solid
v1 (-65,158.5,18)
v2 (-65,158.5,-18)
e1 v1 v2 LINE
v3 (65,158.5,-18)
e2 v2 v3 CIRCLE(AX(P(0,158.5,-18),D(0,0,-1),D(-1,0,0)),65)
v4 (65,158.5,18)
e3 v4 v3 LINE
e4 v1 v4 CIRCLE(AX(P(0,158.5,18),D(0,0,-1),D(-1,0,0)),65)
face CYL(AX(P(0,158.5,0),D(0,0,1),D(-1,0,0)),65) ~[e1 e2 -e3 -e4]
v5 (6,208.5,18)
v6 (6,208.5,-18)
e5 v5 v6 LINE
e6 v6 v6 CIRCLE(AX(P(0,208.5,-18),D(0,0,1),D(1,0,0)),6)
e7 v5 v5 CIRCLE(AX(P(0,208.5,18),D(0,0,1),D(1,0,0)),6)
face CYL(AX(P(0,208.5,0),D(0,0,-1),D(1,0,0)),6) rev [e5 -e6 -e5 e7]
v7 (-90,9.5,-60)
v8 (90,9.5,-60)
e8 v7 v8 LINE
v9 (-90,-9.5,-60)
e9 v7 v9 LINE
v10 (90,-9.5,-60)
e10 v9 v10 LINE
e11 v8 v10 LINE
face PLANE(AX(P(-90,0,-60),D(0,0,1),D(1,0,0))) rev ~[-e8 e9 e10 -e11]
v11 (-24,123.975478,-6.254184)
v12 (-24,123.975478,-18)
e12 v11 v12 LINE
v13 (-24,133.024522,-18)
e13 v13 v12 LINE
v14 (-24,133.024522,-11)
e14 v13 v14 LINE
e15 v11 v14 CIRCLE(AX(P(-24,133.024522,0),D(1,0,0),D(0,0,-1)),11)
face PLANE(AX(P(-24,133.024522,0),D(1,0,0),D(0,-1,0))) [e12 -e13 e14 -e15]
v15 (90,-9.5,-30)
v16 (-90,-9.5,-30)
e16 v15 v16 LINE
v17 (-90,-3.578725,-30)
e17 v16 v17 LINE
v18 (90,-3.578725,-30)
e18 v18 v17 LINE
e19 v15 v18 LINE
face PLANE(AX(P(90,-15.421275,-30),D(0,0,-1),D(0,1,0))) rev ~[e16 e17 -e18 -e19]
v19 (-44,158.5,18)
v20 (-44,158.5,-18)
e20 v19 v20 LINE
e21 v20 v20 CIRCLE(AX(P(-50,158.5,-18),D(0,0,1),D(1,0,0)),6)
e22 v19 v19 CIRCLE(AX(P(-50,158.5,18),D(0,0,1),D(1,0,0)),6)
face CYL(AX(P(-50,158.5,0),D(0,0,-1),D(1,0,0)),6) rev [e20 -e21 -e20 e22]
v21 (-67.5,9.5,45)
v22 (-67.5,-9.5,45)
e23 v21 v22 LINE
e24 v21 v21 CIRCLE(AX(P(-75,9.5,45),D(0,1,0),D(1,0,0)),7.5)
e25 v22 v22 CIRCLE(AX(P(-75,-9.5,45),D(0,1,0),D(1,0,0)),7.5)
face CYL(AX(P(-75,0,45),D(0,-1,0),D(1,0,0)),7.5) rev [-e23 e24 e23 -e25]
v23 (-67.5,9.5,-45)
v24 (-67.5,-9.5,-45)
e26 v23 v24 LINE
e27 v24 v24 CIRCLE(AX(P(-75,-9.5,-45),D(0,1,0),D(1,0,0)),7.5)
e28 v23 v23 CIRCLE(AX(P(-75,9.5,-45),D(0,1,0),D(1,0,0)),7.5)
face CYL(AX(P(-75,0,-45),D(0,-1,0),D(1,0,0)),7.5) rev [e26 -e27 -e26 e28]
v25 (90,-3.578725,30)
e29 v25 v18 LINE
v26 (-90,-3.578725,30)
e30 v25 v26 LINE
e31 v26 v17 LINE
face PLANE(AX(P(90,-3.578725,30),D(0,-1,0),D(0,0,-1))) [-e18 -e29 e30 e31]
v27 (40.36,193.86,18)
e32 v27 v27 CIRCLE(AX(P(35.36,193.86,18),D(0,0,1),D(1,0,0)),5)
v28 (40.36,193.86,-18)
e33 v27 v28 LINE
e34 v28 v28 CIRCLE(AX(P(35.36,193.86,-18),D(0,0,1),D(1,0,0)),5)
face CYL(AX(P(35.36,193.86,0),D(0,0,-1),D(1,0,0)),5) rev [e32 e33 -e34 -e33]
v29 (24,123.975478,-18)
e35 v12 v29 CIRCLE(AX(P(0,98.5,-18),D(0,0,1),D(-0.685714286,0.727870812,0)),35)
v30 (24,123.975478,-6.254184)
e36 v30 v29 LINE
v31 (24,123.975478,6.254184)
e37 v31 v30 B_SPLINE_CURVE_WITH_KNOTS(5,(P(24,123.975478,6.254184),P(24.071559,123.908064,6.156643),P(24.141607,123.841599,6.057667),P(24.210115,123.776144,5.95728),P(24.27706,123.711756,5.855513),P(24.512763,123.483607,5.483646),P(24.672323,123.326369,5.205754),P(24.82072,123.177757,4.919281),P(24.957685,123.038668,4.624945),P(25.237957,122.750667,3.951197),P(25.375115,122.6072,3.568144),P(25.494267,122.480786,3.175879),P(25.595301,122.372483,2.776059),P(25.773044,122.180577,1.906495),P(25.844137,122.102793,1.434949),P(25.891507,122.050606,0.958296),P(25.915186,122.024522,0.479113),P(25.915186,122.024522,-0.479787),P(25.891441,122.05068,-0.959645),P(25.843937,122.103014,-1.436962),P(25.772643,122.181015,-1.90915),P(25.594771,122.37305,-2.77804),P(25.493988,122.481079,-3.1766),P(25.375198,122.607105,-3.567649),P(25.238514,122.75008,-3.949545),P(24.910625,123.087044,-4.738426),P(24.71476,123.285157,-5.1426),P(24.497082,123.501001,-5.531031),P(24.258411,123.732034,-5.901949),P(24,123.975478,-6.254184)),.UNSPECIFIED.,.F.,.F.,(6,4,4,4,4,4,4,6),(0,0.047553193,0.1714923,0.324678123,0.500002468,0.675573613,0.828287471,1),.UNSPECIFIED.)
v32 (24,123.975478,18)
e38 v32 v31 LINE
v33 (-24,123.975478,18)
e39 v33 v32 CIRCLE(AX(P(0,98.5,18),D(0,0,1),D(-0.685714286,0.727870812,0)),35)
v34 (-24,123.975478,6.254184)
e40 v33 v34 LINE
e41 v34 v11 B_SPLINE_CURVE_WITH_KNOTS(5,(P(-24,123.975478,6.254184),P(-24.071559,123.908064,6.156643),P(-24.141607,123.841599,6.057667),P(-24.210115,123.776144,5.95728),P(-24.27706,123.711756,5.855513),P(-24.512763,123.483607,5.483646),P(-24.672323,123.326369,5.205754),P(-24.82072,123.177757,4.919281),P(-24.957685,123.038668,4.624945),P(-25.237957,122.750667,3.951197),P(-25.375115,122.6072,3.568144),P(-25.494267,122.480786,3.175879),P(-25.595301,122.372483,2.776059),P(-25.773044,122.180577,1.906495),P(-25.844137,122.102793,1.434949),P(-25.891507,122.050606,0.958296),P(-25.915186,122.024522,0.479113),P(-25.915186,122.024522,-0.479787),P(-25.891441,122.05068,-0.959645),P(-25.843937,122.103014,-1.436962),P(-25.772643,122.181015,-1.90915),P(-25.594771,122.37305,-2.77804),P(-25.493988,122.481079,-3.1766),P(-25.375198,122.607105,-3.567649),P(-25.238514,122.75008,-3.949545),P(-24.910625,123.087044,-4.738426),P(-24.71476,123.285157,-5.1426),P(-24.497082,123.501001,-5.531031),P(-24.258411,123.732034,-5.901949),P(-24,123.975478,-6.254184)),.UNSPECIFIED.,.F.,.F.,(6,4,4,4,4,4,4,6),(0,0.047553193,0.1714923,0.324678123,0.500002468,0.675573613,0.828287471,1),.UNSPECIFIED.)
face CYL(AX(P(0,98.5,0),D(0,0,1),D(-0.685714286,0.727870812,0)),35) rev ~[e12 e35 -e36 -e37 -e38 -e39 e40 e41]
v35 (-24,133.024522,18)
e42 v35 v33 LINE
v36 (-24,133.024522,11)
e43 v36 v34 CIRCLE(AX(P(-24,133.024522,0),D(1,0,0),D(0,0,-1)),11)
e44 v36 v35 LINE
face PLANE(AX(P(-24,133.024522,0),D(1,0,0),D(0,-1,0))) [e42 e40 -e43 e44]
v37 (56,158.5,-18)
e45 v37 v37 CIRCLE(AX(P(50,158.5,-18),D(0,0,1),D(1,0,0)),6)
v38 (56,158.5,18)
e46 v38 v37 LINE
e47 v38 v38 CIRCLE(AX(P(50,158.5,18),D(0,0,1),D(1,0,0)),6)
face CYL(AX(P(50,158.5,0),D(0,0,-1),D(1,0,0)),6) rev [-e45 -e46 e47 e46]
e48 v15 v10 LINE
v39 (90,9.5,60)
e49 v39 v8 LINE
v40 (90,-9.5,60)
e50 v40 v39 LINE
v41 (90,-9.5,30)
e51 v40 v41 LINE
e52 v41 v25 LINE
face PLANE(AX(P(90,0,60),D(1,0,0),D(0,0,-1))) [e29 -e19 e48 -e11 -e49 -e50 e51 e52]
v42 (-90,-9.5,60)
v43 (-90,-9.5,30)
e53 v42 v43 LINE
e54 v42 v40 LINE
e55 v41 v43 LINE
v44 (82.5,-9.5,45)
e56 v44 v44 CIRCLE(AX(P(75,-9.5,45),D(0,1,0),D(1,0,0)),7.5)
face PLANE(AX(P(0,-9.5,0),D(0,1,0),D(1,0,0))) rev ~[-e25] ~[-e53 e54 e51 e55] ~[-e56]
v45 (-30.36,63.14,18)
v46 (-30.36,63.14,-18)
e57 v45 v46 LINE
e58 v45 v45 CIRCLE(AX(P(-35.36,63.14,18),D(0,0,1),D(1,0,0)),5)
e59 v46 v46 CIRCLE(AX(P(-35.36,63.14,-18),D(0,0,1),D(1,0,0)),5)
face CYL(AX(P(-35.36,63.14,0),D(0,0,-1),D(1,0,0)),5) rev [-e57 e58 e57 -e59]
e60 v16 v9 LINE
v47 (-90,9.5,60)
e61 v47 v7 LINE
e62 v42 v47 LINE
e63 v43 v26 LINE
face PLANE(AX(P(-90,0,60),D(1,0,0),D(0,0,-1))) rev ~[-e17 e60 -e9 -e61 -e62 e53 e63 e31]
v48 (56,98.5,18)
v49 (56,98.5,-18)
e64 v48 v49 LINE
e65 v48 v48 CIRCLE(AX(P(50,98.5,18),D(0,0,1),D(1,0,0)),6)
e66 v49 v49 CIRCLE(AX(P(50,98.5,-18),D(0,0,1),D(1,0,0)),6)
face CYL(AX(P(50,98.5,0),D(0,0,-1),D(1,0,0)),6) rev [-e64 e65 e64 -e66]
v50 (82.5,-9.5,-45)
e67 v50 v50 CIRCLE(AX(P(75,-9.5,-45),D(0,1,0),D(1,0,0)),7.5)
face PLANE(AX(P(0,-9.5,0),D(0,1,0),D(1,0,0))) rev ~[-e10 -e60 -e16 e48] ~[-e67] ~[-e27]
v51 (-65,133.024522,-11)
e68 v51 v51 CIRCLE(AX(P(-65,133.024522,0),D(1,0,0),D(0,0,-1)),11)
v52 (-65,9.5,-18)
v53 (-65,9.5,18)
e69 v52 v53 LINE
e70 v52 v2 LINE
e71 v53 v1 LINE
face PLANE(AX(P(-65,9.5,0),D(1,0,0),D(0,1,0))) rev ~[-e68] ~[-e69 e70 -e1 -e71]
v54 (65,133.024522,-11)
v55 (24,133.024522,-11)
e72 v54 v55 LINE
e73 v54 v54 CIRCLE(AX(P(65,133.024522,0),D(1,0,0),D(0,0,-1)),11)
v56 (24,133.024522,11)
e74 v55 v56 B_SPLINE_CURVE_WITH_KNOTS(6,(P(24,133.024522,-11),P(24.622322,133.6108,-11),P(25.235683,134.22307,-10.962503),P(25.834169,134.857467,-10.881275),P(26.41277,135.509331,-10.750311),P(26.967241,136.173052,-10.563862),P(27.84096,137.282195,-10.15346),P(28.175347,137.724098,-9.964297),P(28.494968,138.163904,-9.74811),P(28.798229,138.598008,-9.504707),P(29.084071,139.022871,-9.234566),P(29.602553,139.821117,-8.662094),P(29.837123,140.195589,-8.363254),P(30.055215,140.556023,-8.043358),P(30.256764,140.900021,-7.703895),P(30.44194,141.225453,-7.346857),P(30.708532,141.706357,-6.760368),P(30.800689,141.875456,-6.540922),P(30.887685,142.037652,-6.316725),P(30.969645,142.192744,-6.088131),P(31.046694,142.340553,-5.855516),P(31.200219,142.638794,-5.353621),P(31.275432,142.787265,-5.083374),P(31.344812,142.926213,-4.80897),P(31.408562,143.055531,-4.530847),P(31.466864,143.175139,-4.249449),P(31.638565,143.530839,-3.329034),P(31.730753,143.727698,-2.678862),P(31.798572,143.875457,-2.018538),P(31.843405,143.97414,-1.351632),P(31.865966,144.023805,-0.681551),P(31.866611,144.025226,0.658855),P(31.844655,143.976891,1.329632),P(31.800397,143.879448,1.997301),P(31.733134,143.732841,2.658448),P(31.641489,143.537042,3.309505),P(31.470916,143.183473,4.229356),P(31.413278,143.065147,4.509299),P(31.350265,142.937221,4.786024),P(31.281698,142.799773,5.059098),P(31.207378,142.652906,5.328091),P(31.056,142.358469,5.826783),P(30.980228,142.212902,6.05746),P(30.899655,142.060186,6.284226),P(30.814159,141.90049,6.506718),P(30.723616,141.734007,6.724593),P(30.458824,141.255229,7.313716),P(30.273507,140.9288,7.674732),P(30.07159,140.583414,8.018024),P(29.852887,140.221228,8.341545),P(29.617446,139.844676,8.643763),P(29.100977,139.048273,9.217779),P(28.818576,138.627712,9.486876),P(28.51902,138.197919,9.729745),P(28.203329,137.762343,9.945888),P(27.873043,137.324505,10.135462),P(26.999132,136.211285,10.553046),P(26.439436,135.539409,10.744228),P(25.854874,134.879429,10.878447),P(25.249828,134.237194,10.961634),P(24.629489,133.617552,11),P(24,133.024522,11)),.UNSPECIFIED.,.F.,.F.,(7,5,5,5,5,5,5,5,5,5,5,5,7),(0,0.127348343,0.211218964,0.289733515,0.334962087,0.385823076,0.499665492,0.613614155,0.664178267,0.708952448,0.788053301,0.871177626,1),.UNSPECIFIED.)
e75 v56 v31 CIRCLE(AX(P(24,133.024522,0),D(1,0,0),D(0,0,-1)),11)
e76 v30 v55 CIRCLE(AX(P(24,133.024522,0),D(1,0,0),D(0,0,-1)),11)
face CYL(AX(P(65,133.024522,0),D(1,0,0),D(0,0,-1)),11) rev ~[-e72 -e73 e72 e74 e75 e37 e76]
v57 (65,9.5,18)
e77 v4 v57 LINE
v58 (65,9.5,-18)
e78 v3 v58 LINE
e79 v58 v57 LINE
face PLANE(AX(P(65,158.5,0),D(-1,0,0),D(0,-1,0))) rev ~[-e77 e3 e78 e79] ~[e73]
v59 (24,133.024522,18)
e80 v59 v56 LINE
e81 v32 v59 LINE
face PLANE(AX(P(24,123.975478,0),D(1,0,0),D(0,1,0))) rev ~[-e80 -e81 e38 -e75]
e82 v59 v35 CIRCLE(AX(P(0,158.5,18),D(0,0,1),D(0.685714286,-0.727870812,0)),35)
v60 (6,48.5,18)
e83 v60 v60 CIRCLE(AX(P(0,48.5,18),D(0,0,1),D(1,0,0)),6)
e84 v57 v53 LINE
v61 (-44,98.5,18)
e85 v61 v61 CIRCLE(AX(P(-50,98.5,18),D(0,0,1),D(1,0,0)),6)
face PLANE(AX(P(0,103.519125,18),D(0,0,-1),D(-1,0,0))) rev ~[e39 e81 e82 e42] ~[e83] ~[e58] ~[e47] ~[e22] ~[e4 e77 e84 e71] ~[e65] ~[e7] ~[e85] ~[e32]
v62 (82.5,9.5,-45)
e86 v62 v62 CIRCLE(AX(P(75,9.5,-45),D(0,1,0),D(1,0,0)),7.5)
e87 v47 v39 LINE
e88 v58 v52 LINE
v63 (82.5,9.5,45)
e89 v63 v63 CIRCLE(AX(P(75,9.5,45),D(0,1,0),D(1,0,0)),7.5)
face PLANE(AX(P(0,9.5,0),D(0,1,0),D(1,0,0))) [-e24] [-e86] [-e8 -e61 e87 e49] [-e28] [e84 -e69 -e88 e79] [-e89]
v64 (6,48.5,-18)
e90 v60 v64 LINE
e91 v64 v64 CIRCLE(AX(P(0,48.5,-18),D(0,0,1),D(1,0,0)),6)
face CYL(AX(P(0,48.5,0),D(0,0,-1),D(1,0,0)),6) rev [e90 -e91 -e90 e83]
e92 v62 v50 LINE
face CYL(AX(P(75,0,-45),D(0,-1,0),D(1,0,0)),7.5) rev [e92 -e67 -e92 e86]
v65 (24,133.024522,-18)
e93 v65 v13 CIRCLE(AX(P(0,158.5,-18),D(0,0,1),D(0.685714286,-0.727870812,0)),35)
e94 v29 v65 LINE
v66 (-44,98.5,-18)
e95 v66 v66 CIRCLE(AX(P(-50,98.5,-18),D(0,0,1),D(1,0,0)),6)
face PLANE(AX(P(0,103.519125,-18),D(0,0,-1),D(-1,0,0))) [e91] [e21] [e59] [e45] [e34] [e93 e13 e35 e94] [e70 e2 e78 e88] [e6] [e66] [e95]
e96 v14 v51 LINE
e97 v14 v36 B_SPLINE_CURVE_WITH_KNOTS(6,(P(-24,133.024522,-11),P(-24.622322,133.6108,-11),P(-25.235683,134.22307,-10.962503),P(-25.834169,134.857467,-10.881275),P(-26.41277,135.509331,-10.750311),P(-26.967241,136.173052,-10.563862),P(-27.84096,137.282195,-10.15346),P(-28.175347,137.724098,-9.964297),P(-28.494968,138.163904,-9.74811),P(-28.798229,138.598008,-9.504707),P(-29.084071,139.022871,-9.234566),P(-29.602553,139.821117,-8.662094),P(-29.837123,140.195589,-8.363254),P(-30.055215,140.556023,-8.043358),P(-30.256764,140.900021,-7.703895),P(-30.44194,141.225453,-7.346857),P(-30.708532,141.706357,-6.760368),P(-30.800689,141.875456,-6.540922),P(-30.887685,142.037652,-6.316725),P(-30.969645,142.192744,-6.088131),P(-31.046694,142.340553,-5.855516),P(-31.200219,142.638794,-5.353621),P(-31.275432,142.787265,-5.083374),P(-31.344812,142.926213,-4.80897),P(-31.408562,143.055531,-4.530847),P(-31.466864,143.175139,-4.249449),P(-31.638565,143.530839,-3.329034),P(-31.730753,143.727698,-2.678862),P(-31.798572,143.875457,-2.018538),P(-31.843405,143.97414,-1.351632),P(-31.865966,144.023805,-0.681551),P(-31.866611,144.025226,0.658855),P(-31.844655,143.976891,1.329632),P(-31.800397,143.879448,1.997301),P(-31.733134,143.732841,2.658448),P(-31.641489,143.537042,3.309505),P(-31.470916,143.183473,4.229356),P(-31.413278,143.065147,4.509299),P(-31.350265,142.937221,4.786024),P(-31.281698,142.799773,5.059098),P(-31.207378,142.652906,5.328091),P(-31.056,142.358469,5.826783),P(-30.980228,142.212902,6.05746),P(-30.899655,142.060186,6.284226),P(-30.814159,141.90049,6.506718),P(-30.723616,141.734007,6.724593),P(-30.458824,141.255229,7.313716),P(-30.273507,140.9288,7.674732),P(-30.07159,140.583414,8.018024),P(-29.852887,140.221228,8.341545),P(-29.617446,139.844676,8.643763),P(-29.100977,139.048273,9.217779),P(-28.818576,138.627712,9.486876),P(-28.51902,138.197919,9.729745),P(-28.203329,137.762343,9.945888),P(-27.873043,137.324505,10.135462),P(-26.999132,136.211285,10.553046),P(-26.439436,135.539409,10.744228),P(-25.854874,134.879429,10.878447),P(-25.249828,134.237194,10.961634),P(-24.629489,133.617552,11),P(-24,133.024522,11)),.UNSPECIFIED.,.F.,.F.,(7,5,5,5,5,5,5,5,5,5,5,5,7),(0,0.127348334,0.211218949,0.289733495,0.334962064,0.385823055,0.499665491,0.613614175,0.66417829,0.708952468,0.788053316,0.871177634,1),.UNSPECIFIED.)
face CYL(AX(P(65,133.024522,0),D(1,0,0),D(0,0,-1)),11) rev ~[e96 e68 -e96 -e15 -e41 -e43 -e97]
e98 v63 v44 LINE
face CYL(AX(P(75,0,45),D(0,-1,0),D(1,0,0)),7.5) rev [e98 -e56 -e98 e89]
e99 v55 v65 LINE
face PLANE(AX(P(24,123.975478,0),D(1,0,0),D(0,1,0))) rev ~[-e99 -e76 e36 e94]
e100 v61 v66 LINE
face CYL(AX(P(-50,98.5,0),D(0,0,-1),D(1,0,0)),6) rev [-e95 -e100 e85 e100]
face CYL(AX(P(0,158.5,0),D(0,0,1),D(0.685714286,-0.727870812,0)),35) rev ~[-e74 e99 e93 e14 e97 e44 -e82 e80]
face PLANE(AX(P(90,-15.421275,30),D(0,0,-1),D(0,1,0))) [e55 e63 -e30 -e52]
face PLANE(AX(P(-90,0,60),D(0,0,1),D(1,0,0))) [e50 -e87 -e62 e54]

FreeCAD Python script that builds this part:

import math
import FreeCAD as App
import Part
import Sketcher


def add_polygon(sketch, points):
    """Adds a closed chain of lines whose ends are joined by coincident constraints."""
    first, n = sketch.GeometryCount, len(points)
    for a, b in zip(points, points[1:] + points[:1]):
        sketch.addGeometry(Part.LineSegment(App.Vector(*a, 0), App.Vector(*b, 0)), False)
    for i in range(n):
        sketch.addConstraint(Sketcher.Constraint("Coincident", first + i, 2, first + (i + 1) % n, 1))

doc = App.newDocument("Part")
body = doc.addObject("PartDesign::Body", "Body")

# Sketch on XZ plane
sketch1 = body.newObject("Sketcher::SketchObject", "Sketch")
sketch1.AttachmentSupport = (doc.getObject("XZ_Plane"), [""])
sketch1.MapMode = "FlatFace"
add_polygon(sketch1, [(-90, -60), (-90, 60), (90, 60), (90, -60)])  # lines 0-3
sketch1.addGeometry(Part.Circle(App.Vector(-75, 45, 0), App.Vector(0, 0, 1), 7.5), False)  # 4
sketch1.addGeometry(Part.Circle(App.Vector(75, 45, 0), App.Vector(0, 0, 1), 7.5), False)  # 5
sketch1.addGeometry(Part.Circle(App.Vector(-75, -45, 0), App.Vector(0, 0, 1), 7.5), False)  # 6
sketch1.addGeometry(Part.Circle(App.Vector(75, -45, 0), App.Vector(0, 0, 1), 7.5), False)  # 7
sketch1.addConstraint([
    Sketcher.Constraint("Vertical", 0),
    Sketcher.Constraint("Horizontal", 1),
    Sketcher.Constraint("Vertical", 2),
    Sketcher.Constraint("Horizontal", 3),
    Sketcher.Constraint("Equal", 4, 5),
    Sketcher.Constraint("Equal", 5, 6),
    Sketcher.Constraint("Equal", 6, 7),
    Sketcher.Constraint("Symmetric", 5, 3, 6, 3, -1, 1),
    Sketcher.Constraint("Symmetric", 4, 3, 7, 3, -1, 1),
    Sketcher.Constraint("Symmetric", 0, 2, 2, 2, -1, 1),
    Sketcher.Constraint("Symmetric", 4, 3, 5, 3, -2),
    Sketcher.Constraint("Diameter", 4, 15.0),
    Sketcher.Constraint("DistanceX", 1, 1, 1, 2, 180.0),
    Sketcher.Constraint("DistanceY", 0, 1, 0, 2, 120.0),
    Sketcher.Constraint("DistanceX", 4, 3, -1, 1, 75.0),
    Sketcher.Constraint("DistanceY", -1, 1, 4, 3, 45.0),
])
pad1 = body.newObject("PartDesign::Pad", "Pad")
pad1.Profile = sketch1
pad1.Length = 19
pad1.Midplane = True

# Sketch on XY plane
sketch2 = body.newObject("Sketcher::SketchObject", "Sketch001")
sketch2.AttachmentSupport = (doc.getObject("XY_Plane"), [""])
sketch2.MapMode = "FlatFace"
sketch2.addGeometry([
    Part.LineSegment(App.Vector(-65, 158.5, 0), App.Vector(-65, 9.5, 0)),  # 0
    Part.LineSegment(App.Vector(-65, 9.5, 0), App.Vector(65, 9.5, 0)),  # 1
    Part.LineSegment(App.Vector(65, 9.5, 0), App.Vector(65, 158.5, 0)),  # 2
    Part.ArcOfCircle(Part.Circle(App.Vector(0, 158.5, 0), App.Vector(0, 0, 1), 65), math.radians(0), math.radians(180)),  # 3
    Part.Circle(App.Vector(50, 98.5, 0), App.Vector(0, 0, 1), 6),  # 4
    Part.Circle(App.Vector(0, 48.5, 0), App.Vector(0, 0, 1), 6),  # 5
    Part.Circle(App.Vector(-35.36, 63.14, 0), App.Vector(0, 0, 1), 5),  # 6
    Part.Circle(App.Vector(-50, 98.5, 0), App.Vector(0, 0, 1), 6),  # 7
    Part.Circle(App.Vector(50, 158.5, 0), App.Vector(0, 0, 1), 6),  # 8
    Part.Circle(App.Vector(35.36, 193.86, 0), App.Vector(0, 0, 1), 5),  # 9
    Part.ArcOfCircle(Part.Circle(App.Vector(0, 158.5, 0), App.Vector(0, 0, 1), 35), math.radians(-46.708192), math.radians(226.708192)),  # 10
    Part.LineSegment(App.Vector(24, 133.024522, 0), App.Vector(24, 123.975478, 0)),  # 11
    Part.ArcOfCircle(Part.Circle(App.Vector(0, 98.5, 0), App.Vector(0, 0, 1), 35), math.radians(133.291808), math.radians(406.708192)),  # 12
    Part.LineSegment(App.Vector(-24, 123.975478, 0), App.Vector(-24, 133.024522, 0)),  # 13
    Part.Circle(App.Vector(-50, 158.5, 0), App.Vector(0, 0, 1), 6),  # 14
    Part.Circle(App.Vector(0, 208.5, 0), App.Vector(0, 0, 1), 6),  # 15
], False)
sketch2.addConstraint([
    Sketcher.Constraint("Coincident", 0, 2, 1, 1),
    Sketcher.Constraint("Coincident", 1, 2, 2, 1),
    Sketcher.Constraint("Tangent", 2, 2, 3, 1),
    Sketcher.Constraint("Tangent", 3, 2, 0, 1),
    Sketcher.Constraint("Coincident", 10, 1, 11, 1),
    Sketcher.Constraint("Coincident", 11, 2, 12, 2),
    Sketcher.Constraint("Coincident", 12, 1, 13, 1),
    Sketcher.Constraint("Coincident", 13, 2, 10, 2),
    Sketcher.Constraint("Vertical", 0),
    Sketcher.Constraint("Horizontal", 1),
    Sketcher.Constraint("Vertical", 2),
    Sketcher.Constraint("Vertical", 11),
    Sketcher.Constraint("Vertical", 13),
    Sketcher.Constraint("Coincident", 10, 3, 3, 3),
    Sketcher.Constraint("Equal", 4, 5),
    Sketcher.Constraint("Equal", 5, 7),
    Sketcher.Constraint("Equal", 7, 8),
    Sketcher.Constraint("Equal", 6, 9),
    Sketcher.Constraint("Equal", 10, 12),
    Sketcher.Constraint("Equal", 8, 14),
    Sketcher.Constraint("Equal", 14, 15),
    Sketcher.Constraint("Symmetric", 4, 3, 7, 3, -2),
    Sketcher.Constraint("Symmetric", 8, 3, 14, 3, -2),
    Sketcher.Constraint("Symmetric", 11, 2, 12, 1, -2),
    Sketcher.Constraint("PointOnObject", 3, 3, -2),
    Sketcher.Constraint("PointOnObject", 5, 3, -2),
    Sketcher.Constraint("PointOnObject", 15, 3, -2),
    Sketcher.Constraint("Horizontal", 3, 3, 8, 3),
    Sketcher.Constraint("Horizontal", 7, 3, 12, 3),
    Sketcher.Constraint("Vertical", 4, 3, 8, 3),
    Sketcher.Constraint("Diameter", 4, 12.0),
    Sketcher.Constraint("Diameter", 6, 10.0),
    Sketcher.Constraint("Radius", 3, 65.0),
    Sketcher.Constraint("Radius", 10, 35.0),
    Sketcher.Constraint("DistanceY", 0, 2, 0, 1, 149.0),
    Sketcher.Constraint("DistanceX", -1, 1, 4, 3, 50.0),
    Sketcher.Constraint("DistanceX", -1, 1, 10, 1, 24.0),
    Sketcher.Constraint("DistanceY", 4, 3, 3, 3, 60.0),
    Sketcher.Constraint("DistanceY", 5, 3, 4, 3, 50.0),
    Sketcher.Constraint("DistanceY", 3, 3, 15, 3, 50.0),
    Sketcher.Constraint("DistanceY", -1, 1, 3, 3, 158.5),
    Sketcher.Constraint("DistanceX", 6, 3, -1, 1, 35.36),
    Sketcher.Constraint("DistanceY", -1, 1, 6, 3, 63.14),
    Sketcher.Constraint("DistanceX", -1, 1, 9, 3, 35.36),
    Sketcher.Constraint("DistanceY", -1, 1, 9, 3, 193.86),
])
pad2 = body.newObject("PartDesign::Pad", "Pad001")
pad2.Profile = sketch2
pad2.Length = 36
pad2.Midplane = True

# Sketch on YZ plane
sketch3 = body.newObject("Sketcher::SketchObject", "Sketch002")
sketch3.AttachmentSupport = (doc.getObject("YZ_Plane"), [""])
sketch3.MapMode = "FlatFace"
sketch3.AttachmentOffset = App.Placement(App.Vector(0, 0, 65), App.Rotation())
sketch3.addGeometry(Part.Circle(App.Vector(133.024522, 0, 0), App.Vector(0, 0, 1), 9), False)
sketch3.addConstraint([
    Sketcher.Constraint("PointOnObject", 0, 3, -1),
    Sketcher.Constraint("Diameter", 0, 18.0),
    Sketcher.Constraint("DistanceX", -1, 1, 0, 3, 133.024522),
])
pocket1 = body.newObject("PartDesign::Pocket", "Pocket")
pocket1.Profile = sketch3
pocket1.Type = "ThroughAll"

# Sketch on YZ plane
sketch4 = body.newObject("Sketcher::SketchObject", "Sketch003")
sketch4.AttachmentSupport = (doc.getObject("YZ_Plane"), [""])
sketch4.MapMode = "FlatFace"
sketch4.AttachmentOffset = App.Placement(App.Vector(0, 0, 65), App.Rotation())
sketch4.addGeometry(Part.Circle(App.Vector(133.024522, 0, 0), App.Vector(0, 0, 1), 11), False)
sketch4.addConstraint([
    Sketcher.Constraint("PointOnObject", 0, 3, -1),
    Sketcher.Constraint("Diameter", 0, 22.0),
    Sketcher.Constraint("DistanceX", -1, 1, 0, 3, 133.024522),
])
pocket2 = body.newObject("PartDesign::Pocket", "Pocket001")
pocket2.Profile = sketch4
pocket2.Type = "ThroughAll"

# Sketch on YZ plane
sketch5 = body.newObject("Sketcher::SketchObject", "Sketch004")
sketch5.AttachmentSupport = (doc.getObject("YZ_Plane"), [""])
sketch5.MapMode = "FlatFace"
sketch5.AttachmentOffset = App.Placement(App.Vector(0, 0, 90), App.Rotation())
add_polygon(sketch5, [(-3.578725, 30), (-15.421275, 30), (-15.421275, -30), (-3.578725, -30)])  # lines 0-3
sketch5.addConstraint([
    Sketcher.Constraint("Horizontal", 0),
    Sketcher.Constraint("Vertical", 1),
    Sketcher.Constraint("Horizontal", 2),
    Sketcher.Constraint("Vertical", 3),
    Sketcher.Constraint("DistanceY", 1, 2, 1, 1, 60.0),
    Sketcher.Constraint("DistanceY", -1, 1, 0, 2, 30.0),
    Sketcher.Constraint("DistanceX", 0, 2, 0, 1, 11.842551),
    Sketcher.Constraint("DistanceX", 0, 2, -1, 1, 15.421275),
])
pocket3 = body.newObject("PartDesign::Pocket", "Pocket002")
pocket3.Profile = sketch5
pocket3.Type = "ThroughAll"

doc.recompute()
